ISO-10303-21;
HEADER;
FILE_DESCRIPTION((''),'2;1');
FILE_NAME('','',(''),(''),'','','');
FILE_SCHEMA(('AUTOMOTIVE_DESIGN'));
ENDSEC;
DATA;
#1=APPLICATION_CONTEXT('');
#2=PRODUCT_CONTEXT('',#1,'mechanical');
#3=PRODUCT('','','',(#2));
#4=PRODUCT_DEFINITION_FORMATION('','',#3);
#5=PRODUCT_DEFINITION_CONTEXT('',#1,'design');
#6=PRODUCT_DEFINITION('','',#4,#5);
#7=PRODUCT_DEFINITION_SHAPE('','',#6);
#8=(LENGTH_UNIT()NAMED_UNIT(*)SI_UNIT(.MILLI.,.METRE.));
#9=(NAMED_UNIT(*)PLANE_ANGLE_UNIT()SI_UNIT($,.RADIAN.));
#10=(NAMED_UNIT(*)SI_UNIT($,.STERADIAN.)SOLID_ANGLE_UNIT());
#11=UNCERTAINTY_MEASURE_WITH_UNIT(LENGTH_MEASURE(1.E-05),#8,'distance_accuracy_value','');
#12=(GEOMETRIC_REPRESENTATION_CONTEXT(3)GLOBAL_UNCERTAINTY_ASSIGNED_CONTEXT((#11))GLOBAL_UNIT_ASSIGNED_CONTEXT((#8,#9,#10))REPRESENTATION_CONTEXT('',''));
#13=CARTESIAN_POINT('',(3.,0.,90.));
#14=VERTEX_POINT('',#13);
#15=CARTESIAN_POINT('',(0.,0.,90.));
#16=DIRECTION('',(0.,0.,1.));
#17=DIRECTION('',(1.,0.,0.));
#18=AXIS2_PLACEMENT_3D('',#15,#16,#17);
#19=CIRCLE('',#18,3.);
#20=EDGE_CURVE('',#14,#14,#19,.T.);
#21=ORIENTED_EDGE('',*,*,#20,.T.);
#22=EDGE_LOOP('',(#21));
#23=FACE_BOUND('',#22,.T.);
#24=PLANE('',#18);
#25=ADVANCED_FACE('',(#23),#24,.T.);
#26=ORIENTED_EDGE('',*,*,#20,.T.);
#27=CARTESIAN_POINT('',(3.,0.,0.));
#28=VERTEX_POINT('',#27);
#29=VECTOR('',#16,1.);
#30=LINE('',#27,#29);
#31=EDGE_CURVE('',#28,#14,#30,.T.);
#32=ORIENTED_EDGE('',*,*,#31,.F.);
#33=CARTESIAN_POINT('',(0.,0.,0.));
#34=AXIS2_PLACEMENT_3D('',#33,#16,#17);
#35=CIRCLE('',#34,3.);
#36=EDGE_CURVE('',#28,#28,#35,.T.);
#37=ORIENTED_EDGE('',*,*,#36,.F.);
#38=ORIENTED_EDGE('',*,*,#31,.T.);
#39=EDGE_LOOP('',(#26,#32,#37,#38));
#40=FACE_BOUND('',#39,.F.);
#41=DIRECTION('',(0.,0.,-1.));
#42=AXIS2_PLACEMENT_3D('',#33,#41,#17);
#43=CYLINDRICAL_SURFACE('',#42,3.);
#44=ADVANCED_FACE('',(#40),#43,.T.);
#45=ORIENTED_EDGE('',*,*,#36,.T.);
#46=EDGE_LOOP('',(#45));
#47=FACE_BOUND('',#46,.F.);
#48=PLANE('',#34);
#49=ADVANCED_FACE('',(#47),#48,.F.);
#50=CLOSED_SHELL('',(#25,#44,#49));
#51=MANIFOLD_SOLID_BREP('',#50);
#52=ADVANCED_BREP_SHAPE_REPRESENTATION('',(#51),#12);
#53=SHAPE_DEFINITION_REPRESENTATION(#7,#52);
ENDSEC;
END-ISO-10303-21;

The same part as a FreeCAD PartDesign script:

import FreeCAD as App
import Part
import Sketcher
from FreeCAD import Vector
Q = App.Units.Quantity

doc = App.newDocument("Part")
params = doc.addObject("Spreadsheet::Sheet", "Params")
for row, (alias, value) in enumerate([
    ("sketch1_diameter", "6 mm"),
    ("pad1_length", "90 mm"),
], start=1):
    params.set(f"A{row}", alias)
    params.set(f"B{row}", "=" + value)
    params.setAlias(f"B{row}", alias)

body = doc.addObject("PartDesign::Body", "Body")

sketch1 = body.newObject("Sketcher::SketchObject", "Sketch")
sketch1.AttachmentSupport = (doc.getObject("XY_Plane"), [""])
sketch1.MapMode = "FlatFace"
sketch1.addGeometry(Part.Circle(Vector(0, 0, 0), Vector(0, 0, 1), 3), False)
sketch1.addConstraint(Sketcher.Constraint("Coincident", 0, 3, -1, 1))
sketch1.addConstraint(Sketcher.Constraint("Diameter", 0, Q("6 mm")))
sketch1.setExpression("Constraints[1]", "Params.sketch1_diameter")
pad1 = body.newObject("PartDesign::Pad", "Pad")
pad1.Profile = sketch1
pad1.setExpression("Length", "Params.pad1_length")

doc.recompute()
